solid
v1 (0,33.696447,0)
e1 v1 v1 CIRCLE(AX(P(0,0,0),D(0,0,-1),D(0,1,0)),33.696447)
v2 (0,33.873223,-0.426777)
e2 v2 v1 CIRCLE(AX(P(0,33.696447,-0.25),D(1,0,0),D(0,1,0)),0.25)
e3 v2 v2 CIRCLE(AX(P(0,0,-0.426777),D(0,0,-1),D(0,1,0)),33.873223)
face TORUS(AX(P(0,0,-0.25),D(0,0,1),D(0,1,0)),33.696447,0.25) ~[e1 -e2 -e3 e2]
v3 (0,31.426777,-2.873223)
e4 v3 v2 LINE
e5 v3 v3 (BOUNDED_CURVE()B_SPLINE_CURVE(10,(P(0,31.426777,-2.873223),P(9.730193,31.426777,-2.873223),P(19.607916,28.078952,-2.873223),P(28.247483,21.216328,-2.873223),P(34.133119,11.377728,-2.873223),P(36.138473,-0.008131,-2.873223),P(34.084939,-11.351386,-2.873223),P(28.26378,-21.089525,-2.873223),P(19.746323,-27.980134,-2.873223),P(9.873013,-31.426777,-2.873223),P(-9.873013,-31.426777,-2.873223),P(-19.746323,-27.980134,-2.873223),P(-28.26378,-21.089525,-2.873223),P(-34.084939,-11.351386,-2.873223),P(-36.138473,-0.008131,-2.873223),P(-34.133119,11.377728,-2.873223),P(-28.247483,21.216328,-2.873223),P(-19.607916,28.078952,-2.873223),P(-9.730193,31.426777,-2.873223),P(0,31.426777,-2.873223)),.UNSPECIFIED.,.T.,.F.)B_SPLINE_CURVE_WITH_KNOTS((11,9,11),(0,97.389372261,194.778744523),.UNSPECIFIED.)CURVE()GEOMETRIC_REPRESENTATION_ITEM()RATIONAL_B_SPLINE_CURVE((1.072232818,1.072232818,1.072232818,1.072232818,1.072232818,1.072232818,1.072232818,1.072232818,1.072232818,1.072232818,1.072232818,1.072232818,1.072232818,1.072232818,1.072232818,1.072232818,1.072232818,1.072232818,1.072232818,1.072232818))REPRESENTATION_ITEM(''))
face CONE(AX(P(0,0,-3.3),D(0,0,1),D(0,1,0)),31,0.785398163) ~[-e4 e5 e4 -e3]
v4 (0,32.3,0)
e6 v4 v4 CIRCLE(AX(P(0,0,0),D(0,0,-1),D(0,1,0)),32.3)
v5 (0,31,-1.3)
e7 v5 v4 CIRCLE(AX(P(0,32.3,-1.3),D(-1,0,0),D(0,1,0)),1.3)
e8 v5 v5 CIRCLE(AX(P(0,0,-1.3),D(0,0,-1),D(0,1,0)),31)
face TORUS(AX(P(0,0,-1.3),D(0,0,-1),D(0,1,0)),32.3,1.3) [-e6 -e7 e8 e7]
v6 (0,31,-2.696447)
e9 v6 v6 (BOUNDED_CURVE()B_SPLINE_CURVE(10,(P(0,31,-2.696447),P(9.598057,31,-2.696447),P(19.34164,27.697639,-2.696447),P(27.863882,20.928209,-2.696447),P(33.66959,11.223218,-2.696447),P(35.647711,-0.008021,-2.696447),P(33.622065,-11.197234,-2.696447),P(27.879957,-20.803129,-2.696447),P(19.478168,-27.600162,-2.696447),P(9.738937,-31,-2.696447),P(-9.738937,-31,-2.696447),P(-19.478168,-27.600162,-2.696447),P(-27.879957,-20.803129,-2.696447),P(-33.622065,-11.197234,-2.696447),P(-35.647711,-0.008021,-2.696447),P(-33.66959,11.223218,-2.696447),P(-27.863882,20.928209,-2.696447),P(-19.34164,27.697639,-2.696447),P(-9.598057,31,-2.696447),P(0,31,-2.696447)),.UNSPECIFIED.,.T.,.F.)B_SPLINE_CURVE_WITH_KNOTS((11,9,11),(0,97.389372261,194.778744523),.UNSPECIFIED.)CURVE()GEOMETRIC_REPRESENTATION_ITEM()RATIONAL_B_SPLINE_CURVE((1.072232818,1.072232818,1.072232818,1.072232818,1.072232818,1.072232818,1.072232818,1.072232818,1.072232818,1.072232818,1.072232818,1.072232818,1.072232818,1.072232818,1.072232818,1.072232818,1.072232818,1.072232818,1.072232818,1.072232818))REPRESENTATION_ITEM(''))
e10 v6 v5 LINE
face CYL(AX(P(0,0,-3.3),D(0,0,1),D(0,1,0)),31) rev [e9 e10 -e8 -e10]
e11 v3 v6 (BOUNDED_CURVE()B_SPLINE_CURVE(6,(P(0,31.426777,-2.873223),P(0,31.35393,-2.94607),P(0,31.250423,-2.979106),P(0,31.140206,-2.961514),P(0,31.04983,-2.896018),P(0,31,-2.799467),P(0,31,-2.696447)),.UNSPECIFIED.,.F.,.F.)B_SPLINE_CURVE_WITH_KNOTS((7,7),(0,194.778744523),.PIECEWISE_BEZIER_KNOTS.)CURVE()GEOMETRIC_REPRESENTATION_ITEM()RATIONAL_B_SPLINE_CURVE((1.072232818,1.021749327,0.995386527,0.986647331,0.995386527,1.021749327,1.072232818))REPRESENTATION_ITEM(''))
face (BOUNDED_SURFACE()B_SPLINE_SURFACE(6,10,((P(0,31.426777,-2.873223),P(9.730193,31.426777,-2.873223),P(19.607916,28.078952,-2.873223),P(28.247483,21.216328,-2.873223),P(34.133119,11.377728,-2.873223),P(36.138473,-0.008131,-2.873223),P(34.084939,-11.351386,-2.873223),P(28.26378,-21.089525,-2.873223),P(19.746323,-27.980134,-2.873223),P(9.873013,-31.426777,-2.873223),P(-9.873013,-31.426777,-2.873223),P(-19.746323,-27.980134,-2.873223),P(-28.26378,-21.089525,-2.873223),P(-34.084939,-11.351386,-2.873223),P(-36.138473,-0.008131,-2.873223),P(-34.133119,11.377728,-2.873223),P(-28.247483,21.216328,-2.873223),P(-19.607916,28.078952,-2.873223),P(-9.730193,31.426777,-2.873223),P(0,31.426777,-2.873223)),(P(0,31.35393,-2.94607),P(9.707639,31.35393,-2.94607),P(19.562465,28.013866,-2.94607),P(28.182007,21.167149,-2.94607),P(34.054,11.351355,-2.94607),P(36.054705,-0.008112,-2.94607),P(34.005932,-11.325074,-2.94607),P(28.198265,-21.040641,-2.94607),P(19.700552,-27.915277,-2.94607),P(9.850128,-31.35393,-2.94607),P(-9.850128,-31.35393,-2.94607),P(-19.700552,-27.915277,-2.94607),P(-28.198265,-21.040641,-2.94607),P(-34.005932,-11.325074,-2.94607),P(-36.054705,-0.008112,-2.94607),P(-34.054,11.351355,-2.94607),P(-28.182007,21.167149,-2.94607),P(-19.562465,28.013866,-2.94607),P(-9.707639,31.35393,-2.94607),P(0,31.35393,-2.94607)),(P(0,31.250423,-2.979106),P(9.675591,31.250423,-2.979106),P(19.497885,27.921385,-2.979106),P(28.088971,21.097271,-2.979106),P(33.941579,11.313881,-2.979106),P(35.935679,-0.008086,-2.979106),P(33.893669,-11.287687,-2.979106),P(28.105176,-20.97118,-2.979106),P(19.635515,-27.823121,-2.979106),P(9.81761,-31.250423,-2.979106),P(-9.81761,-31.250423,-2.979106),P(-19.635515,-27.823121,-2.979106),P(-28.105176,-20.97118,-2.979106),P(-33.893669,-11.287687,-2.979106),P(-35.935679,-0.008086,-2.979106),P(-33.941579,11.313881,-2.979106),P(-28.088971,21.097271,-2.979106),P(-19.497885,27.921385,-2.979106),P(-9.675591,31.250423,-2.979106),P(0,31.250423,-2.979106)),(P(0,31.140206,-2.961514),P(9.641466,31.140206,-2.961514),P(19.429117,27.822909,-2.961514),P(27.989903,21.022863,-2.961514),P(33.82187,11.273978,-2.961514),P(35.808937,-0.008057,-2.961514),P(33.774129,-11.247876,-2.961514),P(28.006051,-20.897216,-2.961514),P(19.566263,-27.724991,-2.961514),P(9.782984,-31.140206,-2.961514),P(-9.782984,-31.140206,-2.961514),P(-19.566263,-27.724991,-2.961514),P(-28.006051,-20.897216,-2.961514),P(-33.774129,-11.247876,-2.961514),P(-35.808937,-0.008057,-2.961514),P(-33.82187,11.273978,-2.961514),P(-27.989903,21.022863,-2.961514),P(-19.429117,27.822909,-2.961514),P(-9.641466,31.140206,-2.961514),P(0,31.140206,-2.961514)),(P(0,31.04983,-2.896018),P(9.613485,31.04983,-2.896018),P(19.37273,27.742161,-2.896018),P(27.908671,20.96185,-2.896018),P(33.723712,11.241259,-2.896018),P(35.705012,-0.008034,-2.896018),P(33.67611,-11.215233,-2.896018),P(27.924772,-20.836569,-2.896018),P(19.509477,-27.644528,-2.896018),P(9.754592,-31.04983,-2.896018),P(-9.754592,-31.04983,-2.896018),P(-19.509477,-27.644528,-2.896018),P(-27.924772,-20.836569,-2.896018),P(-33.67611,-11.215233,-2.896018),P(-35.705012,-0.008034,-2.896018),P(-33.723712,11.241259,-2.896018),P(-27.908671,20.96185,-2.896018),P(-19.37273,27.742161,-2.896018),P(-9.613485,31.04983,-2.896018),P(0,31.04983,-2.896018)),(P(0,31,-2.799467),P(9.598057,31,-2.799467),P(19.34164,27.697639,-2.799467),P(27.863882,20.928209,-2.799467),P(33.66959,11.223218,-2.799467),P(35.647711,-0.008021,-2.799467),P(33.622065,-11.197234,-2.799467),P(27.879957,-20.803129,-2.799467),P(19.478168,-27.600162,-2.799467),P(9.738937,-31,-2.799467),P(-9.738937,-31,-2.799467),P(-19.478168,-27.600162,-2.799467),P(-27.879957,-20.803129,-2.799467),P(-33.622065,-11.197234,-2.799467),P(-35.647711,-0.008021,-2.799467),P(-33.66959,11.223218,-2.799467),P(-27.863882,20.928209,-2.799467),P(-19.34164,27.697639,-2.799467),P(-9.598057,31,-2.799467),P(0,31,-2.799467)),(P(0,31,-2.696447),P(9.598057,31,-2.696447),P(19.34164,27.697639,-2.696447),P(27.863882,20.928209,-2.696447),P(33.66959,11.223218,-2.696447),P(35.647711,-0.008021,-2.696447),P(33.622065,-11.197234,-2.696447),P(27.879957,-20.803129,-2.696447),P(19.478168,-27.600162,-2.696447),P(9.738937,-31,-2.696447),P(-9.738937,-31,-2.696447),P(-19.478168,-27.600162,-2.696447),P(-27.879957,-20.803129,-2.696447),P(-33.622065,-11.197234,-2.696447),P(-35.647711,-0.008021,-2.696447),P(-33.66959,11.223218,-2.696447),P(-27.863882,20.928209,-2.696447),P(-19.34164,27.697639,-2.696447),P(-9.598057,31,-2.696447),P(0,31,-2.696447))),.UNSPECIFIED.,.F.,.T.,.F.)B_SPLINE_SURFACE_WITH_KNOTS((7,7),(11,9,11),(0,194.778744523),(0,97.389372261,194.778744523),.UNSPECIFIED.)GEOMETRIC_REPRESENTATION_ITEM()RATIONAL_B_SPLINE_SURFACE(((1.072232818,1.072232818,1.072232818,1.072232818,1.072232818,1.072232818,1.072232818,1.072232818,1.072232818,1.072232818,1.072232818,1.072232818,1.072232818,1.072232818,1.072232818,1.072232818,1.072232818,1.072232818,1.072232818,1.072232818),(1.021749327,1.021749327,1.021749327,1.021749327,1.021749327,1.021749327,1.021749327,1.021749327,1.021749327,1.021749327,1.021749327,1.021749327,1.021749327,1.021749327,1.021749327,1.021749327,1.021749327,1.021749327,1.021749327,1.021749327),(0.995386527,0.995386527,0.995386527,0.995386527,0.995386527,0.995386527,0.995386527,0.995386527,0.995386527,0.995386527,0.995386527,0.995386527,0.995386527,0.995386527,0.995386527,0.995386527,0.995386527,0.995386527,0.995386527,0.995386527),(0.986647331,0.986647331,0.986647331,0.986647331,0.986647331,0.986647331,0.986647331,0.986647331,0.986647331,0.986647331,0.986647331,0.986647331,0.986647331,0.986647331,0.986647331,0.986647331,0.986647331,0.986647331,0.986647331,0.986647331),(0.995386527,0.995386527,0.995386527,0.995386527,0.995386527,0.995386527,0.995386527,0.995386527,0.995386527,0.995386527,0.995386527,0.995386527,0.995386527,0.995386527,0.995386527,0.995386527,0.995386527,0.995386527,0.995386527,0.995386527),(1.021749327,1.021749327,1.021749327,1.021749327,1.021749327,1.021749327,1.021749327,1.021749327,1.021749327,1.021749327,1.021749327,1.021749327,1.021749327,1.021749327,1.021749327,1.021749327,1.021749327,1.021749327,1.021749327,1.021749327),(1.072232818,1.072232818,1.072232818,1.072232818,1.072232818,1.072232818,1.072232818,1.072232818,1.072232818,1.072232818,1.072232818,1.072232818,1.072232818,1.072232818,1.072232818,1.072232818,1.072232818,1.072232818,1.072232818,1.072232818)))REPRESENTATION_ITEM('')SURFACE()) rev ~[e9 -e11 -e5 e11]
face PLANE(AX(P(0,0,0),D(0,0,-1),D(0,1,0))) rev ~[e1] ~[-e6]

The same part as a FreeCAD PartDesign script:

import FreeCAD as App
import Part
import Sketcher

V = App.Vector


def edges_at(feature, points):
    """Names of the edges that pass closest to the given points."""
    edges = feature.Shape.Edges
    near = lambda p: min(range(len(edges)), key=lambda i: edges[i].distToShape(Part.Vertex(*p))[0])
    return sorted({f"Edge{near(p) + 1}" for p in points})


def add_polygon(sketch, points):
    """Adds a closed chain of lines whose ends are joined by coincident constraints."""
    first, n = sketch.GeometryCount, len(points)
    for a, b in zip(points, points[1:] + points[:1]):
        sketch.addGeometry(Part.LineSegment(App.Vector(*a, 0), App.Vector(*b, 0)), False)
    for i in range(n):
        sketch.addConstraint(Sketcher.Constraint("Coincident", first + i, 2, first + (i + 1) % n, 1))

doc = App.newDocument("Part")
params = doc.addObject("Spreadsheet::Sheet", "Params")
for row, (alias, value) in enumerate([
    ("sketch1_width", "3.3 mm"),
    ("revolution_angle", "360 deg"),
    ("fillet_radius", "1.3 mm"),
    ("fillet2_radius", "0.25 mm"),
    ("fillet3_radius", "0.25 mm"),
], start=1):
    params.set(f"A{row}", alias)
    params.set(f"B{row}", "=" + value)
    params.setAlias(f"B{row}", alias)

body = doc.addObject("PartDesign::Body", "Body")

# Sketch on YZ plane
sketch1 = doc.addObject("Sketcher::SketchObject", "Sketch")
body.addObject(sketch1)
sketch1.AttachmentSupport = (doc.YZ_Plane, [""])
sketch1.MapMode = "FlatFace"
add_polygon(sketch1, [(31, -3.3), (34.3, 0), (31, 0)])  # lines 0-2
sketch1.addConstraint(Sketcher.Constraint("Horizontal", 1))
sketch1.addConstraint(Sketcher.Constraint("Vertical", 2))
sketch1.addConstraint(Sketcher.Constraint("PointOnObject", 0, 2, -1))
sketch1.addConstraint(Sketcher.Constraint("Equal", 1, 2))
sketch1.addConstraint(Sketcher.Constraint("DistanceX", 1, 2, 1, 1, 3.3))
sketch1.addConstraint(Sketcher.Constraint("DistanceX", -1, 1, 1, 2, 31.0))
sketch1.setExpression("Constraints[7]", "Params.sketch1_width")
revolution = doc.addObject("PartDesign::Revolution", "Revolution")
body.addObject(revolution)
revolution.Profile = sketch1
revolution.ReferenceAxis = (sketch1, ["V_Axis"])
revolution.setExpression("Angle", "Params.revolution_angle")
doc.recompute()

fillet = doc.addObject("PartDesign::Fillet", "Fillet")
body.addObject(fillet)
fillet.Base = (revolution, edges_at(revolution, [(0, -31, 0)]))
fillet.setExpression("Radius", "Params.fillet_radius")
doc.recompute()

fillet2 = doc.addObject("PartDesign::Fillet", "Fillet001")
body.addObject(fillet2)
fillet2.Base = (fillet, edges_at(fillet, [(0, -34.3, 0)]))
fillet2.setExpression("Radius", "Params.fillet2_radius")
doc.recompute()

fillet3 = doc.addObject("PartDesign::Fillet", "Fillet002")
body.addObject(fillet3)
fillet3.Base = (fillet2, edges_at(fillet2, [(0, -31, -3.3)]))
fillet3.setExpression("Radius", "Params.fillet3_radius")

doc.recompute()
